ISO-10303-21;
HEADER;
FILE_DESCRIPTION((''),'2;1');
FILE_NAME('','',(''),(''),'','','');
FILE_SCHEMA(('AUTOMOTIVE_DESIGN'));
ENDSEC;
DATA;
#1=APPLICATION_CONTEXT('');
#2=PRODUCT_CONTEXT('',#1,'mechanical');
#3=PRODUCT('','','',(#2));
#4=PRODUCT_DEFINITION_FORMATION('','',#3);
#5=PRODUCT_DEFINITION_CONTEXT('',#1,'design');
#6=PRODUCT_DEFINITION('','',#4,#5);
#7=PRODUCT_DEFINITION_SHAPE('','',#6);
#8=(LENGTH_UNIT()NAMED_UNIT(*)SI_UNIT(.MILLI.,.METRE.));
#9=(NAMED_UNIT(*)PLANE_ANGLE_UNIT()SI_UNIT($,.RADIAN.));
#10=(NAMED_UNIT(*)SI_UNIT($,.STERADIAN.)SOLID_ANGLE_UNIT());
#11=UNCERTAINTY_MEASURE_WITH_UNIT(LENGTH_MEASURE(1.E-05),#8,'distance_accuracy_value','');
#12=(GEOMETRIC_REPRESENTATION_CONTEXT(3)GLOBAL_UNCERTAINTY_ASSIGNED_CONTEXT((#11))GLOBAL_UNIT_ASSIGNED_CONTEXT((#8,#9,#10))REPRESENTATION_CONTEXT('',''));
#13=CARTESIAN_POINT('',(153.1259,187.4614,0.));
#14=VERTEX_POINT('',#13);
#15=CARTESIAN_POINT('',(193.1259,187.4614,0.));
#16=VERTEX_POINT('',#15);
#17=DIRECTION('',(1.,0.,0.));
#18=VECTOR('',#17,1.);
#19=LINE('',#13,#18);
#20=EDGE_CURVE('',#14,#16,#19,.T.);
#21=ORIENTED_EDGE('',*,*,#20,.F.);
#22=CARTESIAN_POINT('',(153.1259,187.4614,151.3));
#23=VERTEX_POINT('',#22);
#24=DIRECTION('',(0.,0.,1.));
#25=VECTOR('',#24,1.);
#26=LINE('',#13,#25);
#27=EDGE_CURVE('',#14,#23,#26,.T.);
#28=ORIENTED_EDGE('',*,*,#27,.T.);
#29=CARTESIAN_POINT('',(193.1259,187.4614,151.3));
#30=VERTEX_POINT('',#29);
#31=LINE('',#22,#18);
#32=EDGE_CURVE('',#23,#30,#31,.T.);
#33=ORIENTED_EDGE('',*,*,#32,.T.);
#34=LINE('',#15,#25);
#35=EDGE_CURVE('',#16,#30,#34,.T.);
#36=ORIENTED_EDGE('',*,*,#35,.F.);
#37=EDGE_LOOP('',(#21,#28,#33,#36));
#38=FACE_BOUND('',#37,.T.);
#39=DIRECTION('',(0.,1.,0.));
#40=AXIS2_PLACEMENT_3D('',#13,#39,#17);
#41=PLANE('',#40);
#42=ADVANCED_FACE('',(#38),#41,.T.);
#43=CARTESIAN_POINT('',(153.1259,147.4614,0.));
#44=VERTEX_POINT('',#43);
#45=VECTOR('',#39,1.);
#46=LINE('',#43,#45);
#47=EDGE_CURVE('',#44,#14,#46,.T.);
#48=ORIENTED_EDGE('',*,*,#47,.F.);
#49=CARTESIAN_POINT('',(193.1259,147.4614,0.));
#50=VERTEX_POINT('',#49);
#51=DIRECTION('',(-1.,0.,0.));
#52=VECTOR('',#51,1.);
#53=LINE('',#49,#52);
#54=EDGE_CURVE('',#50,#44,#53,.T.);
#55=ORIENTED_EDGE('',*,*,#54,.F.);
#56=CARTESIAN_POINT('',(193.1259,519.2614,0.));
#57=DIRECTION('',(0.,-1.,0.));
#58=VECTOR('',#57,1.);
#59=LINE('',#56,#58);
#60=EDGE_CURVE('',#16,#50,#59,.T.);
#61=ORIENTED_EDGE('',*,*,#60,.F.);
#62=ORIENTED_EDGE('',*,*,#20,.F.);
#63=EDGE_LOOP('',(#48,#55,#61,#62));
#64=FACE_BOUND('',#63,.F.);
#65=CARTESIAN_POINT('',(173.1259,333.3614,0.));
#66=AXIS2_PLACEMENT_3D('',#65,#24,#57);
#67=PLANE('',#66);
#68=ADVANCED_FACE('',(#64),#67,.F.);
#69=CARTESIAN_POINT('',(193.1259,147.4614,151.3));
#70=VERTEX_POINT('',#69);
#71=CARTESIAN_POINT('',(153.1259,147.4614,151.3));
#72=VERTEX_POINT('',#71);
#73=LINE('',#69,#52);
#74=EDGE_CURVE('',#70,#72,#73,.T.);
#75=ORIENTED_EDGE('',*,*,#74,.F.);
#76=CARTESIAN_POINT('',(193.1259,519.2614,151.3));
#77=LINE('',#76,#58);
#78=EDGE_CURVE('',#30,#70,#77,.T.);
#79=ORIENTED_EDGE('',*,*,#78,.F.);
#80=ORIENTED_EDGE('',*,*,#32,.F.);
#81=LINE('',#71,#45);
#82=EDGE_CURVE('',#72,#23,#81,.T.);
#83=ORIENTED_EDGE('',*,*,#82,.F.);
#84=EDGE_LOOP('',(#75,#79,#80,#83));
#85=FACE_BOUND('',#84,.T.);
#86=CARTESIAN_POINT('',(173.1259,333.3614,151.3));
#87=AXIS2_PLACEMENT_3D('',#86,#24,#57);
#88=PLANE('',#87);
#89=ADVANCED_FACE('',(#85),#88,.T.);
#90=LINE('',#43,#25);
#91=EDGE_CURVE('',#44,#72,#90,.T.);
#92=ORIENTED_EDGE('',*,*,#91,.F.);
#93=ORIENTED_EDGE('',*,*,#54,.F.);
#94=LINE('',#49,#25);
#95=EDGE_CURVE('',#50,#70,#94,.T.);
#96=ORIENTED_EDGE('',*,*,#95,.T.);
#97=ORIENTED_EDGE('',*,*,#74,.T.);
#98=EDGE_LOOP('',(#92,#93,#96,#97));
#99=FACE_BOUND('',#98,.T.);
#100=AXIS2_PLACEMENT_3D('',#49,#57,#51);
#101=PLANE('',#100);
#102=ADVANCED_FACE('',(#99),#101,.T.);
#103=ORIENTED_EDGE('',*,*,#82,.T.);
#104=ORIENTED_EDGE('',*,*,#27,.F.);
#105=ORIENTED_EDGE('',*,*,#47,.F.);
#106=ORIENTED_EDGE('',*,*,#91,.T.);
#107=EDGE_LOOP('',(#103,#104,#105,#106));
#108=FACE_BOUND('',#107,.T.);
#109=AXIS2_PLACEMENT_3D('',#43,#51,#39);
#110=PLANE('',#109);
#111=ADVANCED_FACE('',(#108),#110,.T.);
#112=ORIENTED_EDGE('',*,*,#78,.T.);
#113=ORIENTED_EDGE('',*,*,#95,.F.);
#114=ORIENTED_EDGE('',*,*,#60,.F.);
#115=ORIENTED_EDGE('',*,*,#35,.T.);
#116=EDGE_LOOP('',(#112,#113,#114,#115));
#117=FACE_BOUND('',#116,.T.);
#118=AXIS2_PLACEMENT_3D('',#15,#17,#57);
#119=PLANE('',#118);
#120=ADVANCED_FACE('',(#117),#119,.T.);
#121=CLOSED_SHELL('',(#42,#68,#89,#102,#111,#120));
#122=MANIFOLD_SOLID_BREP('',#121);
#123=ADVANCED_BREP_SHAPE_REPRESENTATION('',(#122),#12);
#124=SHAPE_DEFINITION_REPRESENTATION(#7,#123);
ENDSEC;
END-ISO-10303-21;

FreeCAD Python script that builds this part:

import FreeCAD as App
import Part
import Sketcher
from FreeCAD import Vector
Q = App.Units.Quantity


def add_polygon(sketch, points):
    """Adds a closed chain of lines whose ends are joined by coincident constraints."""
    first, n = sketch.GeometryCount, len(points)
    for a, b in zip(points, points[1:] + points[:1]):
        sketch.addGeometry(Part.LineSegment(App.Vector(*a, 0), App.Vector(*b, 0)), False)
    for i in range(n):
        sketch.addConstraint(Sketcher.Constraint("Coincident", first + i, 2, first + (i + 1) % n, 1))

doc = App.newDocument("Part")
body = doc.addObject("PartDesign::Body", "Body")

sketch1 = body.newObject("Sketcher::SketchObject", "Sketch")
sketch1.AttachmentSupport = (doc.getObject("XY_Plane"), [""])
sketch1.MapMode = "FlatFace"
add_polygon(sketch1, [(193, 147), (193, 187), (153, 187), (153, 147)])
sketch1.addConstraint([
    Sketcher.Constraint("Vertical", 0),
    Sketcher.Constraint("Horizontal", 1),
    Sketcher.Constraint("Vertical", 2),
    Sketcher.Constraint("Horizontal", 3),
    Sketcher.Constraint("Equal", 3, 0),
    Sketcher.Constraint("DistanceX", 1, 2, 1, 1, Q("40 mm")),
    Sketcher.Constraint("DistanceX", -1, 1, 0, 2, Q("193.126 mm")),
    Sketcher.Constraint("DistanceY", -1, 1, 0, 2, Q("187.4614 mm")),
])
pad1 = body.newObject("PartDesign::Pad", "Pad")
pad1.Profile = sketch1
pad1.Length = 151.3

doc.recompute()
